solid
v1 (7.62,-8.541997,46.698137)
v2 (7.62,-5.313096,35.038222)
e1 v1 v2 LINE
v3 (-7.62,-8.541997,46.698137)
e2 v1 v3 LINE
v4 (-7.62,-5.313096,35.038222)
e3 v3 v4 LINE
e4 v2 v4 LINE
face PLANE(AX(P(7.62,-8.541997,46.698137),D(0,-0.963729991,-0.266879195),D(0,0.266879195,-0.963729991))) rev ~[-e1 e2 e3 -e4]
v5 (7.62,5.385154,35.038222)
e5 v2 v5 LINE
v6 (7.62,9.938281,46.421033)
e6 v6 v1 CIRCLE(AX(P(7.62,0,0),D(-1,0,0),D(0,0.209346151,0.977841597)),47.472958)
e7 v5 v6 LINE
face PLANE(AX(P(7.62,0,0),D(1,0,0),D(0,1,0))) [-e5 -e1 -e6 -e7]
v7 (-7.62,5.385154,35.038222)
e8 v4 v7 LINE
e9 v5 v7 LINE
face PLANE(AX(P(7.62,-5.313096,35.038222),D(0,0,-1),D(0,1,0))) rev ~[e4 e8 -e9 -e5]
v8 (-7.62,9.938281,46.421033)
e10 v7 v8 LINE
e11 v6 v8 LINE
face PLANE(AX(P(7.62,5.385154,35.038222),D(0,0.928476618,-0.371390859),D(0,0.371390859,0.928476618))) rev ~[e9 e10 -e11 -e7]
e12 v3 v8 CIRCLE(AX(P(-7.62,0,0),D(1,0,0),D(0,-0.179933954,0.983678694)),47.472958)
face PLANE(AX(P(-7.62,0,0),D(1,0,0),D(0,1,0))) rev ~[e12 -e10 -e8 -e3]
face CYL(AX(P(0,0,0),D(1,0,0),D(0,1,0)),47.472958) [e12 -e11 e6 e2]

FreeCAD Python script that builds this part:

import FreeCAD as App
import Part
import Sketcher
Q = App.Units.Quantity


def add_polygon(sketch, points):
    """Adds a closed chain of lines whose ends are joined by coincident constraints."""
    first, n = sketch.GeometryCount, len(points)
    for a, b in zip(points, points[1:] + points[:1]):
        sketch.addGeometry(Part.LineSegment(App.Vector(*a, 0), App.Vector(*b, 0)), False)
    for i in range(n):
        sketch.addConstraint(Sketcher.Constraint("Coincident", first + i, 2, first + (i + 1) % n, 1))

doc = App.newDocument("Part")
body = doc.addObject("PartDesign::Body", "Body")

sketch1 = body.newObject("Sketcher::SketchObject", "Sketch")
sketch1.AttachmentSupport = (doc.getObject("YZ_Plane"), [""])
sketch1.MapMode = "FlatFace"
sketch1.addGeometry(Part.Circle(App.Vector(0, 0, 0), App.Vector(0, 0, 1), 47.472958), False)
sketch1.addConstraint([
    Sketcher.Constraint("Coincident", 0, 3, -1, 1),
    Sketcher.Constraint("Diameter", 0, 94.945916),
])
pad1 = body.newObject("PartDesign::Pad", "Pad")
pad1.Profile = sketch1
pad1.Type = "TwoLengths"
pad1.Length = Q("0.3 in")
pad1.Length2 = Q("0.3 in")

sketch2 = body.newObject("Sketcher::SketchObject", "Sketch001")
sketch2.AttachmentSupport = (doc.getObject("YZ_Plane"), [""])
sketch2.MapMode = "FlatFace"
sketch2.AttachmentOffset = App.Placement(App.Vector(0, 0, 0.3 * 25.4), App.Rotation())
add_polygon(sketch2, [(-5.313096, 35.038222), (5.385154, 35.038222), (9.938281, 46.421033), (11.56637, 50.491255), (-9.592399, 50.491255), (-8.541997, 46.698137)])
sketch2.addConstraint([
    Sketcher.Constraint("Horizontal", 0),
    Sketcher.Constraint("Horizontal", 3),
    Sketcher.Constraint("Parallel", 1, 2),
    Sketcher.Constraint("Parallel", 4, 5),
    Sketcher.Constraint("DistanceX", 0, 1, 0, 2, 10.69825),
    Sketcher.Constraint("DistanceX", 3, 2, 3, 1, 21.158769),
    Sketcher.Constraint("DistanceX", 3, 2, -1, 1, 9.592399),
    Sketcher.Constraint("DistanceX", 4, 2, 5, 2, 3.228901),
    Sketcher.Constraint("DistanceY", -1, 1, 0, 2, 35.038222),
    Sketcher.Constraint("DistanceX", -1, 1, 1, 2, 9.938281),
    Sketcher.Constraint("DistanceY", 0, 2, 1, 2, 11.382811),
    Sketcher.Constraint("Distance", 1, 12.259664),
])
pocket1 = body.newObject("PartDesign::Pocket", "Pocket")
pocket1.Profile = sketch2
pocket1.Type = "ThroughAll"
pocket1.Midplane = True

doc.recompute()
